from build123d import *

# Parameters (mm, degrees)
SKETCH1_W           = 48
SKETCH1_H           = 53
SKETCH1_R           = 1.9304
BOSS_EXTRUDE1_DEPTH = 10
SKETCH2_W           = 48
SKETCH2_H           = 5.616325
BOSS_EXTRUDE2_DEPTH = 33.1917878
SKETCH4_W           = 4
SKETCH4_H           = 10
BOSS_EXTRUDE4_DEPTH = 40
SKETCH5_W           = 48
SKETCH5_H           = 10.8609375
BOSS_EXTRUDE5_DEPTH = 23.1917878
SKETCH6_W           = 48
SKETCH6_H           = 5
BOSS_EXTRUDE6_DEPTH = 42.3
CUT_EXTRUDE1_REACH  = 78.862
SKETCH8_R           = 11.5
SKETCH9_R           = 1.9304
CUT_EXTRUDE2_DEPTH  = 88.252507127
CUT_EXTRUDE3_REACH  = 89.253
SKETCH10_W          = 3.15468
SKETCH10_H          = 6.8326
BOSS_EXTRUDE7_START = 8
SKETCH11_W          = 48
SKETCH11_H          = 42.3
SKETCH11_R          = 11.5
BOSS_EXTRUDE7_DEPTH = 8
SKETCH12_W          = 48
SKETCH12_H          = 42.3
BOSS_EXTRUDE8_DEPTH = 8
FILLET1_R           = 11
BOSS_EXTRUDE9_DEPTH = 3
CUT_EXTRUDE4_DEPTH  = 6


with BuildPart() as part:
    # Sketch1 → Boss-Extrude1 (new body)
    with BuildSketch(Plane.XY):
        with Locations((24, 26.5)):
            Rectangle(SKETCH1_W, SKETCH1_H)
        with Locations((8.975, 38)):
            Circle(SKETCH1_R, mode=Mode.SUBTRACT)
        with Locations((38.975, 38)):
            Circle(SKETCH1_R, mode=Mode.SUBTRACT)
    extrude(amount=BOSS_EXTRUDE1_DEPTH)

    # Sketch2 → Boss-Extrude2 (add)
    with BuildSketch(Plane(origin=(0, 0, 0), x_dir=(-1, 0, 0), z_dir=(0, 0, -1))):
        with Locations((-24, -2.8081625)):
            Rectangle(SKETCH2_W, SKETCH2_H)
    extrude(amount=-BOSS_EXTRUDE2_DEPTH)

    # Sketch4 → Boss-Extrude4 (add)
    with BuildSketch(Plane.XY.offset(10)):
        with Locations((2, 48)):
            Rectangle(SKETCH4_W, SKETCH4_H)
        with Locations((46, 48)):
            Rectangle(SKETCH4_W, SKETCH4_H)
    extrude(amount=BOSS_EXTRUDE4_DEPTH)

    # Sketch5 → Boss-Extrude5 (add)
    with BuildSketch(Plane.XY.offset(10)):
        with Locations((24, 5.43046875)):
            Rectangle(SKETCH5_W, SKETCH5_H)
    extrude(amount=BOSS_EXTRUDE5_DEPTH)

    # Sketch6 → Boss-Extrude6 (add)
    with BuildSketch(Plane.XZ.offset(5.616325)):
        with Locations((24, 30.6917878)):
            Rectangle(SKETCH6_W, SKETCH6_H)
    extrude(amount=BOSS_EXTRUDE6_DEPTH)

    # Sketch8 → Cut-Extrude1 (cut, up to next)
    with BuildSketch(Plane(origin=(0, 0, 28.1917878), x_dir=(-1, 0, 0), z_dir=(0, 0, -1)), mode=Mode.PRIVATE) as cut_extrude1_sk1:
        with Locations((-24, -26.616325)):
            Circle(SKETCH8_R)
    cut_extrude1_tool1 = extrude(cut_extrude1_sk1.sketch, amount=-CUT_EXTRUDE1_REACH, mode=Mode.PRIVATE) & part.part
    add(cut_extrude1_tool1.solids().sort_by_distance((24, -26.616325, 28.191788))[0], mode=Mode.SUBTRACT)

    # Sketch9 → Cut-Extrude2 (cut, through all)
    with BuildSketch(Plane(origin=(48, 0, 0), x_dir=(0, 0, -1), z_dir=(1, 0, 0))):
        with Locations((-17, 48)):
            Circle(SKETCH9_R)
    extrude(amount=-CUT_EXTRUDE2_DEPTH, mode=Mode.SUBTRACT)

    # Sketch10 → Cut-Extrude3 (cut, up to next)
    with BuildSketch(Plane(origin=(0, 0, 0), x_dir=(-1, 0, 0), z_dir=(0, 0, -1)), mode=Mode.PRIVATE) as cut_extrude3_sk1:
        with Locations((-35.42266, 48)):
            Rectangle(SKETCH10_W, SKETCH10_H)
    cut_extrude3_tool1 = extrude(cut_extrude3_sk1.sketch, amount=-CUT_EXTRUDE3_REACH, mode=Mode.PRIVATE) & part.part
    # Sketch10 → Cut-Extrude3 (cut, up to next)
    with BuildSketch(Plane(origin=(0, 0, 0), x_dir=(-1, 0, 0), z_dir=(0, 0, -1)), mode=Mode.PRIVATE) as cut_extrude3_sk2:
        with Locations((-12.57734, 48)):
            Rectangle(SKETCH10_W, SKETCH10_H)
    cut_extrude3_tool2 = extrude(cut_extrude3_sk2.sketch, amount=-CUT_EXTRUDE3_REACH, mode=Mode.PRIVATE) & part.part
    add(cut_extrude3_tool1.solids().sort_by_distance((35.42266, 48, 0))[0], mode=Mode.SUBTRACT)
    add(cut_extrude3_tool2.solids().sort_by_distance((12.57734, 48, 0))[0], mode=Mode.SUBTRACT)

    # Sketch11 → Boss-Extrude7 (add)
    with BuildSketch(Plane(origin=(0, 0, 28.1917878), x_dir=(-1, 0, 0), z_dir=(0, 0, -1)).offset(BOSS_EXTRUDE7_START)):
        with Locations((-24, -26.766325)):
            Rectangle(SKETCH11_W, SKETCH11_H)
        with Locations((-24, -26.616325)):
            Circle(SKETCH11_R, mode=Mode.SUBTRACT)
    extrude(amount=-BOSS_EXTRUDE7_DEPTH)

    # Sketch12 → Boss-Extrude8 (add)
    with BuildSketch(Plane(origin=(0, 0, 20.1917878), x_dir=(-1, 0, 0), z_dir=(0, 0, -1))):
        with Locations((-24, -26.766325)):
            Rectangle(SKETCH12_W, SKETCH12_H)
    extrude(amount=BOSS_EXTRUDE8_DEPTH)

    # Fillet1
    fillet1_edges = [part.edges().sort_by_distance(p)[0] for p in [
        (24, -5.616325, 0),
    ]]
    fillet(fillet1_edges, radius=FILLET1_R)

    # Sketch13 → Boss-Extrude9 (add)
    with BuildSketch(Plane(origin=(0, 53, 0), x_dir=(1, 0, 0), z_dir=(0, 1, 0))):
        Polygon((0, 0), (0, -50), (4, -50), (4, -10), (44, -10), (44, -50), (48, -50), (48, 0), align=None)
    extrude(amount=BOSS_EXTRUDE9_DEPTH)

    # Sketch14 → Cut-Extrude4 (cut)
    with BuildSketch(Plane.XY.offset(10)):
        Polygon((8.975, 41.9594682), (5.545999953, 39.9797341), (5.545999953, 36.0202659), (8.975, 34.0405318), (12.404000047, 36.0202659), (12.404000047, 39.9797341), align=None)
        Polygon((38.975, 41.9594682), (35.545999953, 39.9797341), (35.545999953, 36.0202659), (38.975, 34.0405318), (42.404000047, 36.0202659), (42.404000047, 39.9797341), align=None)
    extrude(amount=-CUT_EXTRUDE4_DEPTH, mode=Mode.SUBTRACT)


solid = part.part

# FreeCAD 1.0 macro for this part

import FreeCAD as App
import Part
import Sketcher

V = App.Vector
Q = App.Units.Quantity


def edges_at(feature, points):
    """Names of the edges that pass closest to the given points."""
    edges = feature.Shape.Edges
    near = lambda p: min(range(len(edges)), key=lambda i: edges[i].distToShape(Part.Vertex(*p))[0])
    return sorted({f"Edge{near(p) + 1}" for p in points})

doc = App.newDocument("Part")
body = doc.addObject("PartDesign::Body", "Body")

# Sketch on XY plane
sketch1 = body.newObject("Sketcher::SketchObject", "Sketch")
sketch1.AttachmentSupport = (doc.getObject("XY_Plane"), [""])
sketch1.MapMode = "FlatFace"
sketch1.addGeometry([
    Part.LineSegment(V(0, 53, 0), V(0, 0, 0)),  # 0
    Part.LineSegment(V(0, 0, 0), V(48, 0, 0)),  # 1
    Part.LineSegment(V(48, 0, 0), V(48, 53, 0)),  # 2
    Part.LineSegment(V(48, 53, 0), V(0, 53, 0)),  # 3
    Part.Circle(V(8.975, 38, 0), V(0, 0, 1), 1.9304),  # 4
    Part.Circle(V(38.975, 38, 0), V(0, 0, 1), 1.9304),  # 5
], False)
sketch1.addConstraint([
    Sketcher.Constraint("Coincident", 0, 2, 1, 1),
    Sketcher.Constraint("Coincident", 1, 2, 2, 1),
    Sketcher.Constraint("Coincident", 2, 2, 3, 1),
    Sketcher.Constraint("Coincident", 3, 2, 0, 1),
    Sketcher.Constraint("Vertical", 0),
    Sketcher.Constraint("Horizontal", 1),
    Sketcher.Constraint("Vertical", 2),
    Sketcher.Constraint("Horizontal", 3),
    Sketcher.Constraint("Coincident", 0, 2, -1, 1),
    Sketcher.Constraint("Equal", 4, 5),
    Sketcher.Constraint("Horizontal", 4, 3, 5, 3),
    Sketcher.Constraint("DistanceX", 1, 1, 1, 2, Q("48 mm")),
    Sketcher.Constraint("DistanceY", 0, 2, 0, 1, Q("53 mm")),
    Sketcher.Constraint("DistanceY", -1, 1, 4, 3, Q("38 mm")),
    Sketcher.Constraint("DistanceX", 4, 3, 5, 3, Q("30 mm")),
    Sketcher.Constraint("Diameter", 4, Q("3.8608 mm")),
    Sketcher.Constraint("DistanceX", -1, 1, 4, 3, Q("8.975 mm")),
])
pad1 = body.newObject("PartDesign::Pad", "Pad")
pad1.Profile = sketch1
pad1.Length = 10

# Sketch on XY plane
sketch2 = body.newObject("Sketcher::SketchObject", "Sketch001")
sketch2.AttachmentSupport = (doc.getObject("XY_Plane"), [""])
sketch2.MapMode = "FlatFace"
sketch2.addGeometry([
    Part.LineSegment(V(48, 0, 0), V(48, -5.616325, 0)),
    Part.LineSegment(V(48, -5.616325, 0), V(0, -5.616325, 0)),
    Part.LineSegment(V(0, -5.616325, 0), V(0, 0, 0)),
    Part.LineSegment(V(0, 0, 0), V(48, 0, 0)),
], False)
sketch2.addConstraint([
    Sketcher.Constraint("Coincident", 0, 2, 1, 1),
    Sketcher.Constraint("Coincident", 1, 2, 2, 1),
    Sketcher.Constraint("Coincident", 2, 2, 3, 1),
    Sketcher.Constraint("Coincident", 3, 2, 0, 1),
    Sketcher.Constraint("Vertical", 0),
    Sketcher.Constraint("Horizontal", 1),
    Sketcher.Constraint("Vertical", 2),
    Sketcher.Constraint("Horizontal", 3),
    Sketcher.Constraint("Coincident", 2, 2, -1, 1),
    Sketcher.Constraint("DistanceX", 1, 2, 1, 1, Q("48 mm")),
    Sketcher.Constraint("DistanceY", 0, 2, 0, 1, Q("5.616325 mm")),
])
pad2 = body.newObject("PartDesign::Pad", "Pad001")
pad2.Profile = sketch2
pad2.Length = 33.191788

# Sketch on XY plane
sketch3 = body.newObject("Sketcher::SketchObject", "Sketch002")
sketch3.AttachmentSupport = (doc.getObject("XY_Plane"), [""])
sketch3.MapMode = "FlatFace"
sketch3.AttachmentOffset = App.Placement(V(0, 0, 10), App.Rotation())
sketch3.addGeometry([
    Part.LineSegment(V(0, 53, 0), V(0, 43, 0)),  # 0
    Part.LineSegment(V(0, 43, 0), V(4, 43, 0)),  # 1
    Part.LineSegment(V(4, 43, 0), V(4, 53, 0)),  # 2
    Part.LineSegment(V(4, 53, 0), V(0, 53, 0)),  # 3
    Part.LineSegment(V(44, 53, 0), V(44, 43, 0)),  # 4
    Part.LineSegment(V(44, 43, 0), V(48, 43, 0)),  # 5
    Part.LineSegment(V(48, 43, 0), V(48, 53, 0)),  # 6
    Part.LineSegment(V(48, 53, 0), V(44, 53, 0)),  # 7
], False)
sketch3.addConstraint([
    Sketcher.Constraint("Coincident", 0, 2, 1, 1),
    Sketcher.Constraint("Coincident", 1, 2, 2, 1),
    Sketcher.Constraint("Coincident", 2, 2, 3, 1),
    Sketcher.Constraint("Coincident", 3, 2, 0, 1),
    Sketcher.Constraint("Coincident", 4, 2, 5, 1),
    Sketcher.Constraint("Coincident", 5, 2, 6, 1),
    Sketcher.Constraint("Coincident", 6, 2, 7, 1),
    Sketcher.Constraint("Coincident", 7, 2, 4, 1),
    Sketcher.Constraint("Vertical", 0),
    Sketcher.Constraint("Horizontal", 1),
    Sketcher.Constraint("Vertical", 2),
    Sketcher.Constraint("Horizontal", 3),
    Sketcher.Constraint("Vertical", 4),
    Sketcher.Constraint("Horizontal", 5),
    Sketcher.Constraint("Vertical", 6),
    Sketcher.Constraint("Horizontal", 7),
    Sketcher.Constraint("PointOnObject", 0, 2, -2),
    Sketcher.Constraint("Horizontal", 1, 2, 4, 2),
    Sketcher.Constraint("Horizontal", 3, 2, 6, 2),
    Sketcher.Constraint("Equal", 3, 5),
    Sketcher.Constraint("DistanceX", 1, 1, 1, 2, Q("4 mm")),
    Sketcher.Constraint("DistanceY", 0, 2, 0, 1, Q("10 mm")),
    Sketcher.Constraint("DistanceY", -1, 1, 0, 2, Q("43 mm")),
    Sketcher.Constraint("DistanceX", -1, 1, 4, 2, Q("44 mm")),
])
pad3 = body.newObject("PartDesign::Pad", "Pad002")
pad3.Profile = sketch3
pad3.Length = 40

# Sketch on XY plane
sketch4 = body.newObject("Sketcher::SketchObject", "Sketch003")
sketch4.AttachmentSupport = (doc.getObject("XY_Plane"), [""])
sketch4.MapMode = "FlatFace"
sketch4.AttachmentOffset = App.Placement(V(0, 0, 10), App.Rotation())
sketch4.addGeometry([
    Part.LineSegment(V(0, 10.860938, 0), V(0, 0, 0)),
    Part.LineSegment(V(0, 0, 0), V(48, 0, 0)),
    Part.LineSegment(V(48, 0, 0), V(48, 10.860938, 0)),
    Part.LineSegment(V(48, 10.860938, 0), V(0, 10.860938, 0)),
], False)
sketch4.addConstraint([
    Sketcher.Constraint("Coincident", 0, 2, 1, 1),
    Sketcher.Constraint("Coincident", 1, 2, 2, 1),
    Sketcher.Constraint("Coincident", 2, 2, 3, 1),
    Sketcher.Constraint("Coincident", 3, 2, 0, 1),
    Sketcher.Constraint("Vertical", 0),
    Sketcher.Constraint("Horizontal", 1),
    Sketcher.Constraint("Vertical", 2),
    Sketcher.Constraint("Horizontal", 3),
    Sketcher.Constraint("Coincident", 0, 2, -1, 1),
    Sketcher.Constraint("DistanceX", 1, 1, 1, 2, Q("48 mm")),
    Sketcher.Constraint("DistanceY", 0, 2, 0, 1, Q("10.860938 mm")),
])
pad4 = body.newObject("PartDesign::Pad", "Pad003")
pad4.Profile = sketch4
pad4.Length = 23.191788

# Sketch on XZ plane
sketch5 = body.newObject("Sketcher::SketchObject", "Sketch004")
sketch5.AttachmentSupport = (doc.getObject("XZ_Plane"), [""])
sketch5.MapMode = "FlatFace"
sketch5.AttachmentOffset = App.Placement(V(0, 0, 5.616325), App.Rotation())
sketch5.addGeometry([
    Part.LineSegment(V(0, 33.191788, 0), V(0, 28.191788, 0)),
    Part.LineSegment(V(0, 28.191788, 0), V(48, 28.191788, 0)),
    Part.LineSegment(V(48, 28.191788, 0), V(48, 33.191788, 0)),
    Part.LineSegment(V(48, 33.191788, 0), V(0, 33.191788, 0)),
], False)
sketch5.addConstraint([
    Sketcher.Constraint("Coincident", 0, 2, 1, 1),
    Sketcher.Constraint("Coincident", 1, 2, 2, 1),
    Sketcher.Constraint("Coincident", 2, 2, 3, 1),
    Sketcher.Constraint("Coincident", 3, 2, 0, 1),
    Sketcher.Constraint("Vertical", 0),
    Sketcher.Constraint("Horizontal", 1),
    Sketcher.Constraint("Vertical", 2),
    Sketcher.Constraint("Horizontal", 3),
    Sketcher.Constraint("PointOnObject", 0, 2, -2),
    Sketcher.Constraint("DistanceX", 1, 1, 1, 2, Q("48 mm")),
    Sketcher.Constraint("DistanceY", 0, 2, 0, 1, Q("5 mm")),
    Sketcher.Constraint("DistanceY", -1, 1, 0, 2, Q("28.191788 mm")),
])
pad5 = body.newObject("PartDesign::Pad", "Pad004")
pad5.Profile = sketch5
pad5.Length = 42.3

# Sketch on XY plane
sketch6 = body.newObject("Sketcher::SketchObject", "Sketch005")
sketch6.AttachmentSupport = (doc.getObject("XY_Plane"), [""])
sketch6.MapMode = "FlatFace"
sketch6.AttachmentOffset = App.Placement(V(0, 0, 28.191788), App.Rotation())
sketch6.addGeometry(Part.Circle(V(24, -26.616325, 0), V(0, 0, 1), 11.5), False)
sketch6.addConstraint([
    Sketcher.Constraint("Diameter", 0, Q("23 mm")),
    Sketcher.Constraint("DistanceX", -1, 1, 0, 3, Q("24 mm")),
    Sketcher.Constraint("DistanceY", 0, 3, -1, 1, Q("26.616325 mm")),
])
pocket1 = body.newObject("PartDesign::Pocket", "Pocket")
pocket1.Profile = sketch6
pocket1.Type = "UpToFirst"
pocket1.Reversed = True

# Sketch on YZ plane
sketch7 = body.newObject("Sketcher::SketchObject", "Sketch006")
sketch7.AttachmentSupport = (doc.getObject("YZ_Plane"), [""])
sketch7.MapMode = "FlatFace"
sketch7.AttachmentOffset = App.Placement(V(0, 0, 48), App.Rotation())
sketch7.addGeometry(Part.Circle(V(48, 17, 0), V(0, 0, 1), 1.9304), False)
sketch7.addConstraint([
    Sketcher.Constraint("DistanceX", -1, 1, 0, 3, Q("48 mm")),
    Sketcher.Constraint("DistanceY", -1, 1, 0, 3, Q("17 mm")),
    Sketcher.Constraint("Diameter", 0, Q("3.8608 mm")),
])
pocket2 = body.newObject("PartDesign::Pocket", "Pocket001")
pocket2.Profile = sketch7
pocket2.Type = "ThroughAll"

# Sketch on XY plane
sketch8 = body.newObject("Sketcher::SketchObject", "Sketch007")
sketch8.AttachmentSupport = (doc.getObject("XY_Plane"), [""])
sketch8.MapMode = "FlatFace"
sketch8.addGeometry([
    Part.LineSegment(V(37, 51.4163, 0), V(37, 44.5837, 0)),
    Part.LineSegment(V(37, 44.5837, 0), V(33.84532, 44.5837, 0)),
    Part.LineSegment(V(33.84532, 44.5837, 0), V(33.84532, 51.4163, 0)),
    Part.LineSegment(V(33.84532, 51.4163, 0), V(37, 51.4163, 0)),
], False)
sketch8.addConstraint([
    Sketcher.Constraint("Coincident", 0, 2, 1, 1),
    Sketcher.Constraint("Coincident", 1, 2, 2, 1),
    Sketcher.Constraint("Coincident", 2, 2, 3, 1),
    Sketcher.Constraint("Coincident", 3, 2, 0, 1),
    Sketcher.Constraint("Vertical", 0),
    Sketcher.Constraint("Horizontal", 1),
    Sketcher.Constraint("Vertical", 2),
    Sketcher.Constraint("Horizontal", 3),
    Sketcher.Constraint("DistanceX", -1, 1, 0, 2, Q("37 mm")),
    Sketcher.Constraint("DistanceY", 0, 2, 0, 1, Q("6.8326 mm")),
    Sketcher.Constraint("DistanceX", 1, 2, 1, 1, Q("3.15468 mm")),
    Sketcher.Constraint("DistanceY", -1, 1, 0, 2, Q("44.5837 mm")),
])
pocket3 = body.newObject("PartDesign::Pocket", "Pocket002")
pocket3.Profile = sketch8
pocket3.Type = "UpToFirst"
pocket3.Reversed = True

# Sketch on XY plane
sketch9 = body.newObject("Sketcher::SketchObject", "Sketch008")
sketch9.AttachmentSupport = (doc.getObject("XY_Plane"), [""])
sketch9.MapMode = "FlatFace"
sketch9.addGeometry([
    Part.LineSegment(V(14.15468, 51.4163, 0), V(14.15468, 44.5837, 0)),
    Part.LineSegment(V(14.15468, 44.5837, 0), V(11, 44.5837, 0)),
    Part.LineSegment(V(11, 44.5837, 0), V(11, 51.4163, 0)),
    Part.LineSegment(V(11, 51.4163, 0), V(14.15468, 51.4163, 0)),
], False)
sketch9.addConstraint([
    Sketcher.Constraint("Coincident", 0, 2, 1, 1),
    Sketcher.Constraint("Coincident", 1, 2, 2, 1),
    Sketcher.Constraint("Coincident", 2, 2, 3, 1),
    Sketcher.Constraint("Coincident", 3, 2, 0, 1),
    Sketcher.Constraint("Vertical", 0),
    Sketcher.Constraint("Horizontal", 1),
    Sketcher.Constraint("Vertical", 2),
    Sketcher.Constraint("Horizontal", 3),
    Sketcher.Constraint("DistanceX", -1, 1, 1, 2, Q("11 mm")),
    Sketcher.Constraint("DistanceY", 0, 2, 0, 1, Q("6.8326 mm")),
    Sketcher.Constraint("DistanceX", 1, 2, 1, 1, Q("3.15468 mm")),
    Sketcher.Constraint("DistanceY", -1, 1, 0, 2, Q("44.5837 mm")),
])
pocket4 = body.newObject("PartDesign::Pocket", "Pocket003")
pocket4.Profile = sketch9
pocket4.Type = "UpToFirst"
pocket4.Reversed = True

# Sketch on XY plane
sketch10 = body.newObject("Sketcher::SketchObject", "Sketch009")
sketch10.AttachmentSupport = (doc.getObject("XY_Plane"), [""])
sketch10.MapMode = "FlatFace"
sketch10.AttachmentOffset = App.Placement(V(0, 0, 20.191788), App.Rotation())
sketch10.addGeometry([
    Part.LineSegment(V(48, -5.616325, 0), V(48, -47.916325, 0)),  # 0
    Part.LineSegment(V(48, -47.916325, 0), V(0, -47.916325, 0)),  # 1
    Part.LineSegment(V(0, -47.916325, 0), V(0, -5.616325, 0)),  # 2
    Part.LineSegment(V(0, -5.616325, 0), V(48, -5.616325, 0)),  # 3
    Part.Circle(V(24, -26.616325, 0), V(0, 0, 1), 11.5),  # 4
], False)
sketch10.addConstraint([
    Sketcher.Constraint("Coincident", 0, 2, 1, 1),
    Sketcher.Constraint("Coincident", 1, 2, 2, 1),
    Sketcher.Constraint("Coincident", 2, 2, 3, 1),
    Sketcher.Constraint("Coincident", 3, 2, 0, 1),
    Sketcher.Constraint("Vertical", 0),
    Sketcher.Constraint("Horizontal", 1),
    Sketcher.Constraint("Vertical", 2),
    Sketcher.Constraint("Horizontal", 3),
    Sketcher.Constraint("PointOnObject", 1, 2, -2),
    Sketcher.Constraint("Diameter", 4, Q("23 mm")),
    Sketcher.Constraint("DistanceX", 1, 2, 1, 1, Q("48 mm")),
    Sketcher.Constraint("DistanceY", 0, 2, 0, 1, Q("42.3 mm")),
    Sketcher.Constraint("DistanceX", -1, 1, 4, 3, Q("24 mm")),
    Sketcher.Constraint("DistanceY", 4, 3, 2, 2, Q("21 mm")),
    Sketcher.Constraint("DistanceY", 4, 3, -1, 1, Q("26.616325 mm")),
])
pad6 = body.newObject("PartDesign::Pad", "Pad005")
pad6.Profile = sketch10
pad6.Length = 8

# Sketch on XY plane
sketch11 = body.newObject("Sketcher::SketchObject", "Sketch010")
sketch11.AttachmentSupport = (doc.getObject("XY_Plane"), [""])
sketch11.MapMode = "FlatFace"
sketch11.AttachmentOffset = App.Placement(V(0, 0, 20.191788), App.Rotation())
sketch11.addGeometry([
    Part.LineSegment(V(48, -5.616325, 0), V(48, -47.916325, 0)),
    Part.LineSegment(V(48, -47.916325, 0), V(0, -47.916325, 0)),
    Part.LineSegment(V(0, -47.916325, 0), V(0, -5.616325, 0)),
    Part.LineSegment(V(0, -5.616325, 0), V(48, -5.616325, 0)),
], False)
sketch11.addConstraint([
    Sketcher.Constraint("Coincident", 0, 2, 1, 1),
    Sketcher.Constraint("Coincident", 1, 2, 2, 1),
    Sketcher.Constraint("Coincident", 2, 2, 3, 1),
    Sketcher.Constraint("Coincident", 3, 2, 0, 1),
    Sketcher.Constraint("Vertical", 0),
    Sketcher.Constraint("Horizontal", 1),
    Sketcher.Constraint("Vertical", 2),
    Sketcher.Constraint("Horizontal", 3),
    Sketcher.Constraint("PointOnObject", 1, 2, -2),
    Sketcher.Constraint("DistanceX", 1, 2, 1, 1, Q("48 mm")),
    Sketcher.Constraint("DistanceY", 0, 2, 0, 1, Q("42.3 mm")),
    Sketcher.Constraint("DistanceY", 0, 2, -1, 1, Q("47.916325 mm")),
])
pad7 = body.newObject("PartDesign::Pad", "Pad006")
pad7.Profile = sketch11
pad7.Length = 8
pad7.Reversed = True
doc.recompute()

fillet = body.newObject("PartDesign::Fillet", "Fillet")
fillet.Base = (pad7, edges_at(pad7, [(24, -5.616, 0)]))
fillet.Radius = 11

# Sketch on XZ plane
sketch12 = body.newObject("Sketcher::SketchObject", "Sketch011")
sketch12.AttachmentSupport = (doc.getObject("XZ_Plane"), [""])
sketch12.MapMode = "FlatFace"
sketch12.AttachmentOffset = App.Placement(V(0, 0, -53), App.Rotation())
sketch12.addGeometry([
    Part.LineSegment(V(0, 0, 0), V(0, 50, 0)),  # 0
    Part.LineSegment(V(0, 50, 0), V(4, 50, 0)),  # 1
    Part.LineSegment(V(4, 50, 0), V(4, 10, 0)),  # 2
    Part.LineSegment(V(4, 10, 0), V(44, 10, 0)),  # 3
    Part.LineSegment(V(44, 10, 0), V(44, 50, 0)),  # 4
    Part.LineSegment(V(44, 50, 0), V(48, 50, 0)),  # 5
    Part.LineSegment(V(48, 50, 0), V(48, 0, 0)),  # 6
    Part.LineSegment(V(48, 0, 0), V(0, 0, 0)),  # 7
], False)
sketch12.addConstraint([
    Sketcher.Constraint("Coincident", 0, 2, 1, 1),
    Sketcher.Constraint("Coincident", 1, 2, 2, 1),
    Sketcher.Constraint("Coincident", 2, 2, 3, 1),
    Sketcher.Constraint("Coincident", 3, 2, 4, 1),
    Sketcher.Constraint("Coincident", 4, 2, 5, 1),
    Sketcher.Constraint("Coincident", 5, 2, 6, 1),
    Sketcher.Constraint("Coincident", 6, 2, 7, 1),
    Sketcher.Constraint("Coincident", 7, 2, 0, 1),
    Sketcher.Constraint("Vertical", 0),
    Sketcher.Constraint("Horizontal", 1),
    Sketcher.Constraint("Vertical", 2),
    Sketcher.Constraint("Horizontal", 3),
    Sketcher.Constraint("Vertical", 4),
    Sketcher.Constraint("Horizontal", 5),
    Sketcher.Constraint("Vertical", 6),
    Sketcher.Constraint("Horizontal", 7),
    Sketcher.Constraint("Coincident", 7, 2, -1, 1),
    Sketcher.Constraint("Horizontal", 1, 2, 4, 2),
    Sketcher.Constraint("Equal", 1, 5),
    Sketcher.Constraint("Equal", 3, 2),
    Sketcher.Constraint("DistanceX", 1, 1, 1, 2, Q("4 mm")),
    Sketcher.Constraint("DistanceX", 3, 1, 3, 2, Q("40 mm")),
    Sketcher.Constraint("DistanceY", 0, 1, 0, 2, Q("50 mm")),
])
pad8 = body.newObject("PartDesign::Pad", "Pad007")
pad8.Profile = sketch12
pad8.Length = 3
pad8.Reversed = True

# Sketch on XY plane
sketch13 = body.newObject("Sketcher::SketchObject", "Sketch012")
sketch13.AttachmentSupport = (doc.getObject("XY_Plane"), [""])
sketch13.MapMode = "FlatFace"
sketch13.AttachmentOffset = App.Placement(V(0, 0, 10), App.Rotation())
sketch13.addGeometry([
    Part.LineSegment(V(8.975, 41.959468, 0), V(5.546, 39.979734, 0)),  # 0
    Part.LineSegment(V(5.546, 39.979734, 0), V(5.546, 36.020266, 0)),  # 1
    Part.LineSegment(V(5.546, 36.020266, 0), V(8.975, 34.040532, 0)),  # 2
    Part.LineSegment(V(8.975, 34.040532, 0), V(12.404, 36.020266, 0)),  # 3
    Part.LineSegment(V(12.404, 36.020266, 0), V(12.404, 39.979734, 0)),  # 4
    Part.LineSegment(V(12.404, 39.979734, 0), V(8.975, 41.959468, 0)),  # 5
    Part.LineSegment(V(38.975, 41.959468, 0), V(35.546, 39.979734, 0)),  # 6
    Part.LineSegment(V(35.546, 39.979734, 0), V(35.546, 36.020266, 0)),  # 7
    Part.LineSegment(V(35.546, 36.020266, 0), V(38.975, 34.040532, 0)),  # 8
    Part.LineSegment(V(38.975, 34.040532, 0), V(42.404, 36.020266, 0)),  # 9
    Part.LineSegment(V(42.404, 36.020266, 0), V(42.404, 39.979734, 0)),  # 10
    Part.LineSegment(V(42.404, 39.979734, 0), V(38.975, 41.959468, 0)),  # 11
], False)
sketch13.addConstraint([
    Sketcher.Constraint("Coincident", 0, 2, 1, 1),
    Sketcher.Constraint("Coincident", 1, 2, 2, 1),
    Sketcher.Constraint("Coincident", 2, 2, 3, 1),
    Sketcher.Constraint("Coincident", 3, 2, 4, 1),
    Sketcher.Constraint("Coincident", 4, 2, 5, 1),
    Sketcher.Constraint("Coincident", 5, 2, 0, 1),
    Sketcher.Constraint("Coincident", 6, 2, 7, 1),
    Sketcher.Constraint("Coincident", 7, 2, 8, 1),
    Sketcher.Constraint("Coincident", 8, 2, 9, 1),
    Sketcher.Constraint("Coincident", 9, 2, 10, 1),
    Sketcher.Constraint("Coincident", 10, 2, 11, 1),
    Sketcher.Constraint("Coincident", 11, 2, 6, 1),
    Sketcher.Constraint("Vertical", 1),
    Sketcher.Constraint("Vertical", 4),
    Sketcher.Constraint("Vertical", 7),
    Sketcher.Constraint("Vertical", 10),
    Sketcher.Constraint("Parallel", 0, 3),
    Sketcher.Constraint("Parallel", 2, 5),
    Sketcher.Constraint("Parallel", 3, 6),
    Sketcher.Constraint("Parallel", 5, 8),
    Sketcher.Constraint("Parallel", 6, 9),
    Sketcher.Constraint("Parallel", 8, 11),
    Sketcher.Constraint("Horizontal", 1, 2, 3, 2),
    Sketcher.Constraint("Horizontal", 0, 2, 4, 2),
    Sketcher.Constraint("Horizontal", 4, 2, 6, 2),
    Sketcher.Constraint("Horizontal", 3, 2, 7, 2),
    Sketcher.Constraint("Horizontal", 2, 2, 8, 2),
    Sketcher.Constraint("Horizontal", 7, 2, 9, 2),
    Sketcher.Constraint("Horizontal", 6, 2, 10, 2),
    Sketcher.Constraint("Vertical", 2, 2, 5, 2),
    Sketcher.Constraint("Angle", 0, Q("-150 deg")),
    Sketcher.Constraint("DistanceX", 0, 2, 6, 2, Q("30 mm")),
    Sketcher.Constraint("DistanceX", -1, 1, 0, 2, Q("5.546 mm")),
    Sketcher.Constraint("DistanceX", -1, 1, 2, 2, Q("8.975 mm")),
    Sketcher.Constraint("DistanceY", 1, 2, 1, 1, Q("3.959468 mm")),
    Sketcher.Constraint("DistanceY", -1, 1, 2, 2, Q("34.040532 mm")),
])
pocket5 = body.newObject("PartDesign::Pocket", "Pocket004")
pocket5.Profile = sketch13
pocket5.Length = 6

doc.recompute()
